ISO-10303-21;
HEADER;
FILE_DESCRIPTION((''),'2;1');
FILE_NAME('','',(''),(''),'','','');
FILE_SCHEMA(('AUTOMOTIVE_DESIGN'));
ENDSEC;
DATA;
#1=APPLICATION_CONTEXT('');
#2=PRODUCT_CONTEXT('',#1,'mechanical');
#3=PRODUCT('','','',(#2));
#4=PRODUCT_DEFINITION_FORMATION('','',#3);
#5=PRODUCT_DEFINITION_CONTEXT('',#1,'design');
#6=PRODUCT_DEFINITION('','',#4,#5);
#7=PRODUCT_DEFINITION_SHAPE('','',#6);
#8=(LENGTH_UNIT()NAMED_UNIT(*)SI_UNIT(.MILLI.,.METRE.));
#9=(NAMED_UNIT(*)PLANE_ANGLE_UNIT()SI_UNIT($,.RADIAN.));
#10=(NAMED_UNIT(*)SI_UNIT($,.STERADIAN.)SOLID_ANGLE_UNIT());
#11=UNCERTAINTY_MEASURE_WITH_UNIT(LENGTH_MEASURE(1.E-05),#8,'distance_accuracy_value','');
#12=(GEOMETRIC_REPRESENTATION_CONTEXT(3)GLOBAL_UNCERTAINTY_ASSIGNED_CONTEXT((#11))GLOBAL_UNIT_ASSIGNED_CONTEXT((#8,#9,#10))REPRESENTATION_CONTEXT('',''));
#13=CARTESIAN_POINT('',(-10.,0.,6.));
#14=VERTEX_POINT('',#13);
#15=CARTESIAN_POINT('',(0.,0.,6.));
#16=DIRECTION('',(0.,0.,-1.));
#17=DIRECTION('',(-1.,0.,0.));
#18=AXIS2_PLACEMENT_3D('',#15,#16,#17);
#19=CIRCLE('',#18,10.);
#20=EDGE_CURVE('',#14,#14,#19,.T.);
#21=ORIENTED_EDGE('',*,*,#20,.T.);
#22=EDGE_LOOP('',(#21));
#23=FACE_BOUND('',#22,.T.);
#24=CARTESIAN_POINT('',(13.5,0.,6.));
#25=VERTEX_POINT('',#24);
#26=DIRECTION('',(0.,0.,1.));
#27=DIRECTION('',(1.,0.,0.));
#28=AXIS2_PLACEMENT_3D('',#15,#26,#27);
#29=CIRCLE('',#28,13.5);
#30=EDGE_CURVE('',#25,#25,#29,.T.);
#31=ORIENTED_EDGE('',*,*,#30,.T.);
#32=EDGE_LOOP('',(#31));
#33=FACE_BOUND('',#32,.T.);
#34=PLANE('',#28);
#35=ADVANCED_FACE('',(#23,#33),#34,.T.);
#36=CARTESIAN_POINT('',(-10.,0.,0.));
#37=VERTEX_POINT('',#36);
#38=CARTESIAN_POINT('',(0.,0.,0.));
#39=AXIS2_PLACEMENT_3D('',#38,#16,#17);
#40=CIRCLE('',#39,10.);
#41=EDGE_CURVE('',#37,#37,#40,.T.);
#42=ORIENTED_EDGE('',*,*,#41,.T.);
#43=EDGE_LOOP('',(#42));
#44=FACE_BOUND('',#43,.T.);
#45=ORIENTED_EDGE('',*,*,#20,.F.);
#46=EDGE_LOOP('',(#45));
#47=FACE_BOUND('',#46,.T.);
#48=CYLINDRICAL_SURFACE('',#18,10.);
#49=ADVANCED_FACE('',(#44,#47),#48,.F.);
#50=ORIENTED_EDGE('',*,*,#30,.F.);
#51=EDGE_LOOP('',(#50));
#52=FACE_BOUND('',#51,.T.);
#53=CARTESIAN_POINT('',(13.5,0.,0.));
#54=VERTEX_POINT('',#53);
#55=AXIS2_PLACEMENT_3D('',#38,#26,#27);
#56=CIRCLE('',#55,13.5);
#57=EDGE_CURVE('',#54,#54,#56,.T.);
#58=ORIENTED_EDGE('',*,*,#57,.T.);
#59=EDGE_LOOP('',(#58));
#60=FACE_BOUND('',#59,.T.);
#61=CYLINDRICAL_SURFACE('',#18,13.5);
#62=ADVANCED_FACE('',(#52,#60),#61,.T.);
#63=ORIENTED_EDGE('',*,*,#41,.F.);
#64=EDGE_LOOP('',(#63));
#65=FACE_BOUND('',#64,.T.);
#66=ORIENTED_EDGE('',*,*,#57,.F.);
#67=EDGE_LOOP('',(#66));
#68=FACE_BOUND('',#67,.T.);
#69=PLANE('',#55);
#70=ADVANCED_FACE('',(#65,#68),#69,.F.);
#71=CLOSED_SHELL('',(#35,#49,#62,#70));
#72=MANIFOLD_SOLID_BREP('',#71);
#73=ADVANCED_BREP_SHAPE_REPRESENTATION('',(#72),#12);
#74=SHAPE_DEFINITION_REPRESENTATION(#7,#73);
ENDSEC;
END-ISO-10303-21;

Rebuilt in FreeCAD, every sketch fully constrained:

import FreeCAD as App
import Part
import Sketcher

V = App.Vector

doc = App.newDocument("Part")
body = doc.addObject("PartDesign::Body", "Body")

# Sketch on XY plane
sketch1 = doc.addObject("Sketcher::SketchObject", "Sketch")
body.addObject(sketch1)
sketch1.AttachmentSupport = (doc.XY_Plane, [""])
sketch1.MapMode = "FlatFace"
sketch1.addGeometry(Part.Circle(V(0, 0, 0), V(0, 0, 1), 14), False)
sketch1.addConstraint([
    Sketcher.Constraint("Coincident", 0, 3, -1, 1),
    Sketcher.Constraint("Diameter", 0, 27.0),
])
pad1 = doc.addObject("PartDesign::Pad", "Pad")
body.addObject(pad1)
pad1.Profile = sketch1
pad1.Length = 6

# Sketch on XY plane
sketch2 = doc.addObject("Sketcher::SketchObject", "Sketch001")
body.addObject(sketch2)
sketch2.AttachmentSupport = (doc.XY_Plane, [""])
sketch2.MapMode = "FlatFace"
sketch2.addGeometry(Part.Circle(V(0, 0, 0), V(0, 0, 1), 10), False)
sketch2.addConstraint([
    Sketcher.Constraint("Coincident", 0, 3, -1, 1),
    Sketcher.Constraint("Diameter", 0, 20.0),
])
pocket1 = doc.addObject("PartDesign::Pocket", "Pocket")
body.addObject(pocket1)
pocket1.Profile = sketch2
pocket1.Type = "ThroughAll"
pocket1.Reversed = True

doc.recompute()
